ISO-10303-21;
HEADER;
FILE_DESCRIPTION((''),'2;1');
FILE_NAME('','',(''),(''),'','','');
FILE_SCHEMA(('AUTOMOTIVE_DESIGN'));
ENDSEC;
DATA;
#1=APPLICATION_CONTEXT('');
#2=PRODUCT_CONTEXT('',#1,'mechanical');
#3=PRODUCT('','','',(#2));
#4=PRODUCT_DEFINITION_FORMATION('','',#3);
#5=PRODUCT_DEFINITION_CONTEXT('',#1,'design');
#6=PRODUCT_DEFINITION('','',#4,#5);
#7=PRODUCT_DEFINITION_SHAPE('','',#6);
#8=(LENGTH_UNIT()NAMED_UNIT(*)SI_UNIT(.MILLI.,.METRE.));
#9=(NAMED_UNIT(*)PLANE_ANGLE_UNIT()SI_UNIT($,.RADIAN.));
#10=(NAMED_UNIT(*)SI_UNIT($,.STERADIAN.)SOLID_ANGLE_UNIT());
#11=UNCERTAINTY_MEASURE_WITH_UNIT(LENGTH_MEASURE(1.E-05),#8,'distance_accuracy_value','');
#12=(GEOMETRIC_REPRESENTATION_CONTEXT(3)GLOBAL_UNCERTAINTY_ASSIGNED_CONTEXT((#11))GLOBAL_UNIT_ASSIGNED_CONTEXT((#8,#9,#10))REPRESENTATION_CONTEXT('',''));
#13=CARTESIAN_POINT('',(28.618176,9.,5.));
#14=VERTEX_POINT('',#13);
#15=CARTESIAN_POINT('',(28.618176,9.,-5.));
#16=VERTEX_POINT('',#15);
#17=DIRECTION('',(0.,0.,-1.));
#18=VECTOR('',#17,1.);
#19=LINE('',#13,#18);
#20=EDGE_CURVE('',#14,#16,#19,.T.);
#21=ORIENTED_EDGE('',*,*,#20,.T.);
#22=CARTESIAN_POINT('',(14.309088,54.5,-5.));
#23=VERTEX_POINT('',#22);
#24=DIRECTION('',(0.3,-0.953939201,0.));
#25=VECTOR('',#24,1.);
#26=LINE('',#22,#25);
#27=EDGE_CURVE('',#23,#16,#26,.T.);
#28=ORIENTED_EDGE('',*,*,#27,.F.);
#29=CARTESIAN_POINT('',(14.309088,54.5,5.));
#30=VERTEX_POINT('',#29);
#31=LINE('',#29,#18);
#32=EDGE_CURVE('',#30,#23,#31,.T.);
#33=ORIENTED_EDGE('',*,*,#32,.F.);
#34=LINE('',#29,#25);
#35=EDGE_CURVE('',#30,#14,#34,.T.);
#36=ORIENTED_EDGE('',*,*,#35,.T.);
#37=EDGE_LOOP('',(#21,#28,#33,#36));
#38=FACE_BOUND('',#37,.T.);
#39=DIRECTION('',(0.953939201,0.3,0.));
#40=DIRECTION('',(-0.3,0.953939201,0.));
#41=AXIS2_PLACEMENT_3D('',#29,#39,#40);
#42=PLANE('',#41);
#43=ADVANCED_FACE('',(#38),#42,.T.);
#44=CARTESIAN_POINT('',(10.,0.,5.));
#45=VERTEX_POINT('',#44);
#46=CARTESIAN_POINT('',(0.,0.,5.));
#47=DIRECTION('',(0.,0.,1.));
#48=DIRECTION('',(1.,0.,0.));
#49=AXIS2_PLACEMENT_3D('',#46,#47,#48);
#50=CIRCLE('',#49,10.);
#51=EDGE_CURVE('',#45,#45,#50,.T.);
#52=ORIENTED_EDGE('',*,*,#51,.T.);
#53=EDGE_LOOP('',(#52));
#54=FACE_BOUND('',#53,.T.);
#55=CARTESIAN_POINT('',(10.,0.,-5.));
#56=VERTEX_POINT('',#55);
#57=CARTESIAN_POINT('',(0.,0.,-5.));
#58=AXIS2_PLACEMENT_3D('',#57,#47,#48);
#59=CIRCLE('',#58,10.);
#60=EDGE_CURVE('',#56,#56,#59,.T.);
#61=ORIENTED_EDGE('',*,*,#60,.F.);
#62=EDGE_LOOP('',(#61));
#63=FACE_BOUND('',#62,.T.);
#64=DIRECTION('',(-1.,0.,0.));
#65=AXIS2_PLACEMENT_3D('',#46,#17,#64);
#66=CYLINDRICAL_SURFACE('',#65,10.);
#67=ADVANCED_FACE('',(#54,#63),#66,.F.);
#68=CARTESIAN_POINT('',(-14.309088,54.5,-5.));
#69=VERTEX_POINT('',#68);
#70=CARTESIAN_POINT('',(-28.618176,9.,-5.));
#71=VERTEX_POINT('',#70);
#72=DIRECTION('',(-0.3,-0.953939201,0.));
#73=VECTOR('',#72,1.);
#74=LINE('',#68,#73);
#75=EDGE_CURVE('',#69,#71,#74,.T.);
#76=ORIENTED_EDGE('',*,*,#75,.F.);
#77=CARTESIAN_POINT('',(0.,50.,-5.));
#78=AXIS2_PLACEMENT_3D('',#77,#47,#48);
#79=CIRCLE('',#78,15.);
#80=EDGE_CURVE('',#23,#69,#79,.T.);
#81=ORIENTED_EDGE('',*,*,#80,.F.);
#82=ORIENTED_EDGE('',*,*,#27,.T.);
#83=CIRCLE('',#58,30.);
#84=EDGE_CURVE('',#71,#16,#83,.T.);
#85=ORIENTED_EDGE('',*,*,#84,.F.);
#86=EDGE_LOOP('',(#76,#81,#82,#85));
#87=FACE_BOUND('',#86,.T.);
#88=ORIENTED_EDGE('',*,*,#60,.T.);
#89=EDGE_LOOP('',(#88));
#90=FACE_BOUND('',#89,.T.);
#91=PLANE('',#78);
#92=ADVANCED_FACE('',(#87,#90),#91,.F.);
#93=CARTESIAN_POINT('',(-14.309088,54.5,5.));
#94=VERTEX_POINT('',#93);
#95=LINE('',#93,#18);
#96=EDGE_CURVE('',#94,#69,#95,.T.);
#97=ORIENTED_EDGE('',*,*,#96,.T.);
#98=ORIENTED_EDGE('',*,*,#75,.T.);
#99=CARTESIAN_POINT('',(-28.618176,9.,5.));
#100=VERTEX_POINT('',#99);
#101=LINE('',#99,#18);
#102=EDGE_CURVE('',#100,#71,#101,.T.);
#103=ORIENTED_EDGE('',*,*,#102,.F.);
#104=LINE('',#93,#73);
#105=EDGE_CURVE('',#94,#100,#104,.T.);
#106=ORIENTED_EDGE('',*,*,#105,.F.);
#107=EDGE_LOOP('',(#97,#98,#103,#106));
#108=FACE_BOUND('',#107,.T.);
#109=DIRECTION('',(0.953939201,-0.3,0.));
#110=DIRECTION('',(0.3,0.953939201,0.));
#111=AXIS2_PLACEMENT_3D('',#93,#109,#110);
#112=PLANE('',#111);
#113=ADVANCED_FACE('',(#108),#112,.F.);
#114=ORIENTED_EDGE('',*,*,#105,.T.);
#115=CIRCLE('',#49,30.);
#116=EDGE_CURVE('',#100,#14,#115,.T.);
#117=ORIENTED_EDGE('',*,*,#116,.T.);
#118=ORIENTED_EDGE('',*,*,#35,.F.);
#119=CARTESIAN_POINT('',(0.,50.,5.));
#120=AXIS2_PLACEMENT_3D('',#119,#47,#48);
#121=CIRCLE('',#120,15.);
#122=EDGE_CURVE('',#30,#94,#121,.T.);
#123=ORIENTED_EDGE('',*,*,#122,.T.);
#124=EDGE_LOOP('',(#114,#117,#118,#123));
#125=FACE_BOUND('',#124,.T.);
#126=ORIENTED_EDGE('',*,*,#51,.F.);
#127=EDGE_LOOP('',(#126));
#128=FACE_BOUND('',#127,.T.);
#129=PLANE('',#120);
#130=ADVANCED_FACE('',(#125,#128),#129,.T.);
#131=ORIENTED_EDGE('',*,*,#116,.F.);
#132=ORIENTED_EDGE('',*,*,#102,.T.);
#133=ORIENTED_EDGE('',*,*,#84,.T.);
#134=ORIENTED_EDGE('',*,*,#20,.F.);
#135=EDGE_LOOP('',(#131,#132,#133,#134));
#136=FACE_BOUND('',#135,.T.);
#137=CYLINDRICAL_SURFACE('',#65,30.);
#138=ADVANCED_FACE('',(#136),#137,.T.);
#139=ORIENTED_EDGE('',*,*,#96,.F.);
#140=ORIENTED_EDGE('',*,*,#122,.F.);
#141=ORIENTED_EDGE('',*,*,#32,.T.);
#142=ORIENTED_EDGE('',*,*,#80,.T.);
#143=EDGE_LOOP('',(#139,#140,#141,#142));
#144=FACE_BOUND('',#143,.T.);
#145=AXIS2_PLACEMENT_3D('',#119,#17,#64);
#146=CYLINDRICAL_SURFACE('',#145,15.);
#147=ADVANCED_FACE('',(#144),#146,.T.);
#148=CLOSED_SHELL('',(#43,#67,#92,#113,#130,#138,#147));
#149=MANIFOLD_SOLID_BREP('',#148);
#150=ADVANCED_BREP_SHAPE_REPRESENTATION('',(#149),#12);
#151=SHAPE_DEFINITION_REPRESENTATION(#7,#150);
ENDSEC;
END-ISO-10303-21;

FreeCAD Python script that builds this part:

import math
import FreeCAD as App
import Part
import Sketcher
from FreeCAD import Vector
Q = App.Units.Quantity

doc = App.newDocument("Part")
params = doc.addObject("Spreadsheet::Sheet", "Params")
for row, (alias, value) in enumerate([
    ("sketch1_diameter", "20 mm"),
    ("sketch1_radius", "30 mm"),
    ("sketch1_radius2", "15 mm"),
    ("pad1_length", "10 mm"),
], start=1):
    params.set(f"A{row}", alias)
    params.set(f"B{row}", "=" + value)
    params.setAlias(f"B{row}", alias)

body = doc.addObject("PartDesign::Body", "Body")

sketch1 = doc.addObject("Sketcher::SketchObject", "Sketch")
body.addObject(sketch1)
sketch1.AttachmentSupport = (doc.XY_Plane, [""])
sketch1.MapMode = "FlatFace"
sketch1.addGeometry(Part.LineSegment(Vector(-14, 54, 0), Vector(-29, 9, 0)), False)
sketch1.addGeometry(Part.ArcOfCircle(Part.Circle(Vector(0, 0, 0), Vector(0, 0, 1), 30), math.radians(163), math.radians(377)), False)
sketch1.addGeometry(Part.LineSegment(Vector(29, 9, 0), Vector(14, 54, 0)), False)
sketch1.addGeometry(Part.ArcOfCircle(Part.Circle(Vector(0, 50, 0), Vector(0, 0, 1), 15), math.radians(17), math.radians(163)), False)
sketch1.addGeometry(Part.Circle(Vector(0, 0, 0), Vector(0, 0, 1), 10), False)
sketch1.addConstraint(Sketcher.Constraint("Tangent", 0, 2, 1, 1))
sketch1.addConstraint(Sketcher.Constraint("Tangent", 1, 2, 2, 1))
sketch1.addConstraint(Sketcher.Constraint("Tangent", 2, 2, 3, 1))
sketch1.addConstraint(Sketcher.Constraint("Tangent", 3, 2, 0, 1))
sketch1.addConstraint(Sketcher.Constraint("Coincident", 1, 3, -1, 1))
sketch1.addConstraint(Sketcher.Constraint("Coincident", 4, 3, -1, 1))
sketch1.addConstraint(Sketcher.Constraint("PointOnObject", 3, 3, -2))
sketch1.addConstraint(Sketcher.Constraint("Diameter", 4, Q("20 mm")))
sketch1.addConstraint(Sketcher.Constraint("Radius", 1, Q("30 mm")))
sketch1.addConstraint(Sketcher.Constraint("Radius", 3, Q("15 mm")))
sketch1.addConstraint(Sketcher.Constraint("DistanceY", -1, 1, 3, 3, Q("50 mm")))
sketch1.setExpression("Constraints[7]", "Params.sketch1_diameter")
sketch1.setExpression("Constraints[8]", "Params.sketch1_radius")
sketch1.setExpression("Constraints[9]", "Params.sketch1_radius2")
pad1 = doc.addObject("PartDesign::Pad", "Pad")
body.addObject(pad1)
pad1.Profile = sketch1
pad1.setExpression("Length", "Params.pad1_length")
pad1.Midplane = True

doc.recompute()
